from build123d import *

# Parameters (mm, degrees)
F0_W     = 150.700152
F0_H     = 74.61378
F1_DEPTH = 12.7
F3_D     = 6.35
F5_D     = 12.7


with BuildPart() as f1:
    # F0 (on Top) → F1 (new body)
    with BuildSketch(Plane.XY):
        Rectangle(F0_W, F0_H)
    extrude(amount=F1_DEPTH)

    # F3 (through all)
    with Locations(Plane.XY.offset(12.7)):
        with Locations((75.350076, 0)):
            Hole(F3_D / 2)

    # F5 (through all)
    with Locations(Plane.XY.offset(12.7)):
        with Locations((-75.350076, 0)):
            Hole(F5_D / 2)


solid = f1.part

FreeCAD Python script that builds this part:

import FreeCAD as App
import Part
import Sketcher
from FreeCAD import Vector
Q = App.Units.Quantity


def add_polygon(sketch, points):
    """Adds a closed chain of lines whose ends are joined by coincident constraints."""
    first, n = sketch.GeometryCount, len(points)
    for a, b in zip(points, points[1:] + points[:1]):
        sketch.addGeometry(Part.LineSegment(App.Vector(*a, 0), App.Vector(*b, 0)), False)
    for i in range(n):
        sketch.addConstraint(Sketcher.Constraint("Coincident", first + i, 2, first + (i + 1) % n, 1))

doc = App.newDocument("Part")
body = doc.addObject("PartDesign::Body", "Body")

# Sketch on XY plane
sketch1 = body.newObject("Sketcher::SketchObject", "Sketch")
sketch1.AttachmentSupport = (doc.getObject("XY_Plane"), [""])
sketch1.MapMode = "FlatFace"
add_polygon(sketch1, [(-75, 37), (-75, -37), (75, -37), (75, 37)])  # lines 0-3
sketch1.addConstraint(Sketcher.Constraint("Vertical", 0))
sketch1.addConstraint(Sketcher.Constraint("Horizontal", 1))
sketch1.addConstraint(Sketcher.Constraint("Vertical", 2))
sketch1.addConstraint(Sketcher.Constraint("Horizontal", 3))
sketch1.addConstraint(Sketcher.Constraint("Symmetric", 0, 2, 2, 2, -1, 1))
sketch1.addConstraint(Sketcher.Constraint("DistanceX", 1, 1, 1, 2, Q("150.700152 mm")))
sketch1.addConstraint(Sketcher.Constraint("DistanceY", 0, 2, 0, 1, Q("74.61378 mm")))
pad1 = body.newObject("PartDesign::Pad", "Pad")
pad1.Profile = sketch1
pad1.Length = Q("0.5 in")

# Sketch on XY plane
sketch2 = body.newObject("Sketcher::SketchObject", "Sketch001")
sketch2.AttachmentSupport = (doc.getObject("XY_Plane"), [""])
sketch2.MapMode = "FlatFace"
sketch2.AttachmentOffset = App.Placement(Vector(0, 0, 0.5 * 25.4), App.Rotation())
sketch2.addGeometry(Part.Circle(Vector(75.4, 0, 0), Vector(0, 0, 1), 3.2), False)
sketch2.addConstraint(Sketcher.Constraint("PointOnObject", 0, 3, -1))
sketch2.addConstraint(Sketcher.Constraint("Diameter", 0, Q("0.25 in")))
sketch2.addConstraint(Sketcher.Constraint("DistanceX", -1, 1, 0, 3, Q("75.350076 mm")))
doc.recompute()
hole = body.newObject("PartDesign::Hole", "Hole")
hole.Profile = sketch2
hole.ThreadType = "None"
hole.Diameter = Q("0.25 in")
hole.DepthType = "ThroughAll"

# Sketch on XY plane
sketch3 = body.newObject("Sketcher::SketchObject", "Sketch002")
sketch3.AttachmentSupport = (doc.getObject("XY_Plane"), [""])
sketch3.MapMode = "FlatFace"
sketch3.AttachmentOffset = App.Placement(Vector(0, 0, 0.5 * 25.4), App.Rotation())
sketch3.addGeometry(Part.Circle(Vector(-75, 0, 0), Vector(0, 0, 1), 6), False)
sketch3.addConstraint(Sketcher.Constraint("PointOnObject", 0, 3, -1))
sketch3.addConstraint(Sketcher.Constraint("Diameter", 0, Q("0.5 in")))
sketch3.addConstraint(Sketcher.Constraint("DistanceX", 0, 3, -1, 1, Q("75.350076 mm")))
doc.recompute()
hole2 = body.newObject("PartDesign::Hole", "Hole001")
hole2.Profile = sketch3
hole2.ThreadType = "None"
hole2.Diameter = Q("0.5 in")
hole2.DepthType = "ThroughAll"

doc.recompute()
